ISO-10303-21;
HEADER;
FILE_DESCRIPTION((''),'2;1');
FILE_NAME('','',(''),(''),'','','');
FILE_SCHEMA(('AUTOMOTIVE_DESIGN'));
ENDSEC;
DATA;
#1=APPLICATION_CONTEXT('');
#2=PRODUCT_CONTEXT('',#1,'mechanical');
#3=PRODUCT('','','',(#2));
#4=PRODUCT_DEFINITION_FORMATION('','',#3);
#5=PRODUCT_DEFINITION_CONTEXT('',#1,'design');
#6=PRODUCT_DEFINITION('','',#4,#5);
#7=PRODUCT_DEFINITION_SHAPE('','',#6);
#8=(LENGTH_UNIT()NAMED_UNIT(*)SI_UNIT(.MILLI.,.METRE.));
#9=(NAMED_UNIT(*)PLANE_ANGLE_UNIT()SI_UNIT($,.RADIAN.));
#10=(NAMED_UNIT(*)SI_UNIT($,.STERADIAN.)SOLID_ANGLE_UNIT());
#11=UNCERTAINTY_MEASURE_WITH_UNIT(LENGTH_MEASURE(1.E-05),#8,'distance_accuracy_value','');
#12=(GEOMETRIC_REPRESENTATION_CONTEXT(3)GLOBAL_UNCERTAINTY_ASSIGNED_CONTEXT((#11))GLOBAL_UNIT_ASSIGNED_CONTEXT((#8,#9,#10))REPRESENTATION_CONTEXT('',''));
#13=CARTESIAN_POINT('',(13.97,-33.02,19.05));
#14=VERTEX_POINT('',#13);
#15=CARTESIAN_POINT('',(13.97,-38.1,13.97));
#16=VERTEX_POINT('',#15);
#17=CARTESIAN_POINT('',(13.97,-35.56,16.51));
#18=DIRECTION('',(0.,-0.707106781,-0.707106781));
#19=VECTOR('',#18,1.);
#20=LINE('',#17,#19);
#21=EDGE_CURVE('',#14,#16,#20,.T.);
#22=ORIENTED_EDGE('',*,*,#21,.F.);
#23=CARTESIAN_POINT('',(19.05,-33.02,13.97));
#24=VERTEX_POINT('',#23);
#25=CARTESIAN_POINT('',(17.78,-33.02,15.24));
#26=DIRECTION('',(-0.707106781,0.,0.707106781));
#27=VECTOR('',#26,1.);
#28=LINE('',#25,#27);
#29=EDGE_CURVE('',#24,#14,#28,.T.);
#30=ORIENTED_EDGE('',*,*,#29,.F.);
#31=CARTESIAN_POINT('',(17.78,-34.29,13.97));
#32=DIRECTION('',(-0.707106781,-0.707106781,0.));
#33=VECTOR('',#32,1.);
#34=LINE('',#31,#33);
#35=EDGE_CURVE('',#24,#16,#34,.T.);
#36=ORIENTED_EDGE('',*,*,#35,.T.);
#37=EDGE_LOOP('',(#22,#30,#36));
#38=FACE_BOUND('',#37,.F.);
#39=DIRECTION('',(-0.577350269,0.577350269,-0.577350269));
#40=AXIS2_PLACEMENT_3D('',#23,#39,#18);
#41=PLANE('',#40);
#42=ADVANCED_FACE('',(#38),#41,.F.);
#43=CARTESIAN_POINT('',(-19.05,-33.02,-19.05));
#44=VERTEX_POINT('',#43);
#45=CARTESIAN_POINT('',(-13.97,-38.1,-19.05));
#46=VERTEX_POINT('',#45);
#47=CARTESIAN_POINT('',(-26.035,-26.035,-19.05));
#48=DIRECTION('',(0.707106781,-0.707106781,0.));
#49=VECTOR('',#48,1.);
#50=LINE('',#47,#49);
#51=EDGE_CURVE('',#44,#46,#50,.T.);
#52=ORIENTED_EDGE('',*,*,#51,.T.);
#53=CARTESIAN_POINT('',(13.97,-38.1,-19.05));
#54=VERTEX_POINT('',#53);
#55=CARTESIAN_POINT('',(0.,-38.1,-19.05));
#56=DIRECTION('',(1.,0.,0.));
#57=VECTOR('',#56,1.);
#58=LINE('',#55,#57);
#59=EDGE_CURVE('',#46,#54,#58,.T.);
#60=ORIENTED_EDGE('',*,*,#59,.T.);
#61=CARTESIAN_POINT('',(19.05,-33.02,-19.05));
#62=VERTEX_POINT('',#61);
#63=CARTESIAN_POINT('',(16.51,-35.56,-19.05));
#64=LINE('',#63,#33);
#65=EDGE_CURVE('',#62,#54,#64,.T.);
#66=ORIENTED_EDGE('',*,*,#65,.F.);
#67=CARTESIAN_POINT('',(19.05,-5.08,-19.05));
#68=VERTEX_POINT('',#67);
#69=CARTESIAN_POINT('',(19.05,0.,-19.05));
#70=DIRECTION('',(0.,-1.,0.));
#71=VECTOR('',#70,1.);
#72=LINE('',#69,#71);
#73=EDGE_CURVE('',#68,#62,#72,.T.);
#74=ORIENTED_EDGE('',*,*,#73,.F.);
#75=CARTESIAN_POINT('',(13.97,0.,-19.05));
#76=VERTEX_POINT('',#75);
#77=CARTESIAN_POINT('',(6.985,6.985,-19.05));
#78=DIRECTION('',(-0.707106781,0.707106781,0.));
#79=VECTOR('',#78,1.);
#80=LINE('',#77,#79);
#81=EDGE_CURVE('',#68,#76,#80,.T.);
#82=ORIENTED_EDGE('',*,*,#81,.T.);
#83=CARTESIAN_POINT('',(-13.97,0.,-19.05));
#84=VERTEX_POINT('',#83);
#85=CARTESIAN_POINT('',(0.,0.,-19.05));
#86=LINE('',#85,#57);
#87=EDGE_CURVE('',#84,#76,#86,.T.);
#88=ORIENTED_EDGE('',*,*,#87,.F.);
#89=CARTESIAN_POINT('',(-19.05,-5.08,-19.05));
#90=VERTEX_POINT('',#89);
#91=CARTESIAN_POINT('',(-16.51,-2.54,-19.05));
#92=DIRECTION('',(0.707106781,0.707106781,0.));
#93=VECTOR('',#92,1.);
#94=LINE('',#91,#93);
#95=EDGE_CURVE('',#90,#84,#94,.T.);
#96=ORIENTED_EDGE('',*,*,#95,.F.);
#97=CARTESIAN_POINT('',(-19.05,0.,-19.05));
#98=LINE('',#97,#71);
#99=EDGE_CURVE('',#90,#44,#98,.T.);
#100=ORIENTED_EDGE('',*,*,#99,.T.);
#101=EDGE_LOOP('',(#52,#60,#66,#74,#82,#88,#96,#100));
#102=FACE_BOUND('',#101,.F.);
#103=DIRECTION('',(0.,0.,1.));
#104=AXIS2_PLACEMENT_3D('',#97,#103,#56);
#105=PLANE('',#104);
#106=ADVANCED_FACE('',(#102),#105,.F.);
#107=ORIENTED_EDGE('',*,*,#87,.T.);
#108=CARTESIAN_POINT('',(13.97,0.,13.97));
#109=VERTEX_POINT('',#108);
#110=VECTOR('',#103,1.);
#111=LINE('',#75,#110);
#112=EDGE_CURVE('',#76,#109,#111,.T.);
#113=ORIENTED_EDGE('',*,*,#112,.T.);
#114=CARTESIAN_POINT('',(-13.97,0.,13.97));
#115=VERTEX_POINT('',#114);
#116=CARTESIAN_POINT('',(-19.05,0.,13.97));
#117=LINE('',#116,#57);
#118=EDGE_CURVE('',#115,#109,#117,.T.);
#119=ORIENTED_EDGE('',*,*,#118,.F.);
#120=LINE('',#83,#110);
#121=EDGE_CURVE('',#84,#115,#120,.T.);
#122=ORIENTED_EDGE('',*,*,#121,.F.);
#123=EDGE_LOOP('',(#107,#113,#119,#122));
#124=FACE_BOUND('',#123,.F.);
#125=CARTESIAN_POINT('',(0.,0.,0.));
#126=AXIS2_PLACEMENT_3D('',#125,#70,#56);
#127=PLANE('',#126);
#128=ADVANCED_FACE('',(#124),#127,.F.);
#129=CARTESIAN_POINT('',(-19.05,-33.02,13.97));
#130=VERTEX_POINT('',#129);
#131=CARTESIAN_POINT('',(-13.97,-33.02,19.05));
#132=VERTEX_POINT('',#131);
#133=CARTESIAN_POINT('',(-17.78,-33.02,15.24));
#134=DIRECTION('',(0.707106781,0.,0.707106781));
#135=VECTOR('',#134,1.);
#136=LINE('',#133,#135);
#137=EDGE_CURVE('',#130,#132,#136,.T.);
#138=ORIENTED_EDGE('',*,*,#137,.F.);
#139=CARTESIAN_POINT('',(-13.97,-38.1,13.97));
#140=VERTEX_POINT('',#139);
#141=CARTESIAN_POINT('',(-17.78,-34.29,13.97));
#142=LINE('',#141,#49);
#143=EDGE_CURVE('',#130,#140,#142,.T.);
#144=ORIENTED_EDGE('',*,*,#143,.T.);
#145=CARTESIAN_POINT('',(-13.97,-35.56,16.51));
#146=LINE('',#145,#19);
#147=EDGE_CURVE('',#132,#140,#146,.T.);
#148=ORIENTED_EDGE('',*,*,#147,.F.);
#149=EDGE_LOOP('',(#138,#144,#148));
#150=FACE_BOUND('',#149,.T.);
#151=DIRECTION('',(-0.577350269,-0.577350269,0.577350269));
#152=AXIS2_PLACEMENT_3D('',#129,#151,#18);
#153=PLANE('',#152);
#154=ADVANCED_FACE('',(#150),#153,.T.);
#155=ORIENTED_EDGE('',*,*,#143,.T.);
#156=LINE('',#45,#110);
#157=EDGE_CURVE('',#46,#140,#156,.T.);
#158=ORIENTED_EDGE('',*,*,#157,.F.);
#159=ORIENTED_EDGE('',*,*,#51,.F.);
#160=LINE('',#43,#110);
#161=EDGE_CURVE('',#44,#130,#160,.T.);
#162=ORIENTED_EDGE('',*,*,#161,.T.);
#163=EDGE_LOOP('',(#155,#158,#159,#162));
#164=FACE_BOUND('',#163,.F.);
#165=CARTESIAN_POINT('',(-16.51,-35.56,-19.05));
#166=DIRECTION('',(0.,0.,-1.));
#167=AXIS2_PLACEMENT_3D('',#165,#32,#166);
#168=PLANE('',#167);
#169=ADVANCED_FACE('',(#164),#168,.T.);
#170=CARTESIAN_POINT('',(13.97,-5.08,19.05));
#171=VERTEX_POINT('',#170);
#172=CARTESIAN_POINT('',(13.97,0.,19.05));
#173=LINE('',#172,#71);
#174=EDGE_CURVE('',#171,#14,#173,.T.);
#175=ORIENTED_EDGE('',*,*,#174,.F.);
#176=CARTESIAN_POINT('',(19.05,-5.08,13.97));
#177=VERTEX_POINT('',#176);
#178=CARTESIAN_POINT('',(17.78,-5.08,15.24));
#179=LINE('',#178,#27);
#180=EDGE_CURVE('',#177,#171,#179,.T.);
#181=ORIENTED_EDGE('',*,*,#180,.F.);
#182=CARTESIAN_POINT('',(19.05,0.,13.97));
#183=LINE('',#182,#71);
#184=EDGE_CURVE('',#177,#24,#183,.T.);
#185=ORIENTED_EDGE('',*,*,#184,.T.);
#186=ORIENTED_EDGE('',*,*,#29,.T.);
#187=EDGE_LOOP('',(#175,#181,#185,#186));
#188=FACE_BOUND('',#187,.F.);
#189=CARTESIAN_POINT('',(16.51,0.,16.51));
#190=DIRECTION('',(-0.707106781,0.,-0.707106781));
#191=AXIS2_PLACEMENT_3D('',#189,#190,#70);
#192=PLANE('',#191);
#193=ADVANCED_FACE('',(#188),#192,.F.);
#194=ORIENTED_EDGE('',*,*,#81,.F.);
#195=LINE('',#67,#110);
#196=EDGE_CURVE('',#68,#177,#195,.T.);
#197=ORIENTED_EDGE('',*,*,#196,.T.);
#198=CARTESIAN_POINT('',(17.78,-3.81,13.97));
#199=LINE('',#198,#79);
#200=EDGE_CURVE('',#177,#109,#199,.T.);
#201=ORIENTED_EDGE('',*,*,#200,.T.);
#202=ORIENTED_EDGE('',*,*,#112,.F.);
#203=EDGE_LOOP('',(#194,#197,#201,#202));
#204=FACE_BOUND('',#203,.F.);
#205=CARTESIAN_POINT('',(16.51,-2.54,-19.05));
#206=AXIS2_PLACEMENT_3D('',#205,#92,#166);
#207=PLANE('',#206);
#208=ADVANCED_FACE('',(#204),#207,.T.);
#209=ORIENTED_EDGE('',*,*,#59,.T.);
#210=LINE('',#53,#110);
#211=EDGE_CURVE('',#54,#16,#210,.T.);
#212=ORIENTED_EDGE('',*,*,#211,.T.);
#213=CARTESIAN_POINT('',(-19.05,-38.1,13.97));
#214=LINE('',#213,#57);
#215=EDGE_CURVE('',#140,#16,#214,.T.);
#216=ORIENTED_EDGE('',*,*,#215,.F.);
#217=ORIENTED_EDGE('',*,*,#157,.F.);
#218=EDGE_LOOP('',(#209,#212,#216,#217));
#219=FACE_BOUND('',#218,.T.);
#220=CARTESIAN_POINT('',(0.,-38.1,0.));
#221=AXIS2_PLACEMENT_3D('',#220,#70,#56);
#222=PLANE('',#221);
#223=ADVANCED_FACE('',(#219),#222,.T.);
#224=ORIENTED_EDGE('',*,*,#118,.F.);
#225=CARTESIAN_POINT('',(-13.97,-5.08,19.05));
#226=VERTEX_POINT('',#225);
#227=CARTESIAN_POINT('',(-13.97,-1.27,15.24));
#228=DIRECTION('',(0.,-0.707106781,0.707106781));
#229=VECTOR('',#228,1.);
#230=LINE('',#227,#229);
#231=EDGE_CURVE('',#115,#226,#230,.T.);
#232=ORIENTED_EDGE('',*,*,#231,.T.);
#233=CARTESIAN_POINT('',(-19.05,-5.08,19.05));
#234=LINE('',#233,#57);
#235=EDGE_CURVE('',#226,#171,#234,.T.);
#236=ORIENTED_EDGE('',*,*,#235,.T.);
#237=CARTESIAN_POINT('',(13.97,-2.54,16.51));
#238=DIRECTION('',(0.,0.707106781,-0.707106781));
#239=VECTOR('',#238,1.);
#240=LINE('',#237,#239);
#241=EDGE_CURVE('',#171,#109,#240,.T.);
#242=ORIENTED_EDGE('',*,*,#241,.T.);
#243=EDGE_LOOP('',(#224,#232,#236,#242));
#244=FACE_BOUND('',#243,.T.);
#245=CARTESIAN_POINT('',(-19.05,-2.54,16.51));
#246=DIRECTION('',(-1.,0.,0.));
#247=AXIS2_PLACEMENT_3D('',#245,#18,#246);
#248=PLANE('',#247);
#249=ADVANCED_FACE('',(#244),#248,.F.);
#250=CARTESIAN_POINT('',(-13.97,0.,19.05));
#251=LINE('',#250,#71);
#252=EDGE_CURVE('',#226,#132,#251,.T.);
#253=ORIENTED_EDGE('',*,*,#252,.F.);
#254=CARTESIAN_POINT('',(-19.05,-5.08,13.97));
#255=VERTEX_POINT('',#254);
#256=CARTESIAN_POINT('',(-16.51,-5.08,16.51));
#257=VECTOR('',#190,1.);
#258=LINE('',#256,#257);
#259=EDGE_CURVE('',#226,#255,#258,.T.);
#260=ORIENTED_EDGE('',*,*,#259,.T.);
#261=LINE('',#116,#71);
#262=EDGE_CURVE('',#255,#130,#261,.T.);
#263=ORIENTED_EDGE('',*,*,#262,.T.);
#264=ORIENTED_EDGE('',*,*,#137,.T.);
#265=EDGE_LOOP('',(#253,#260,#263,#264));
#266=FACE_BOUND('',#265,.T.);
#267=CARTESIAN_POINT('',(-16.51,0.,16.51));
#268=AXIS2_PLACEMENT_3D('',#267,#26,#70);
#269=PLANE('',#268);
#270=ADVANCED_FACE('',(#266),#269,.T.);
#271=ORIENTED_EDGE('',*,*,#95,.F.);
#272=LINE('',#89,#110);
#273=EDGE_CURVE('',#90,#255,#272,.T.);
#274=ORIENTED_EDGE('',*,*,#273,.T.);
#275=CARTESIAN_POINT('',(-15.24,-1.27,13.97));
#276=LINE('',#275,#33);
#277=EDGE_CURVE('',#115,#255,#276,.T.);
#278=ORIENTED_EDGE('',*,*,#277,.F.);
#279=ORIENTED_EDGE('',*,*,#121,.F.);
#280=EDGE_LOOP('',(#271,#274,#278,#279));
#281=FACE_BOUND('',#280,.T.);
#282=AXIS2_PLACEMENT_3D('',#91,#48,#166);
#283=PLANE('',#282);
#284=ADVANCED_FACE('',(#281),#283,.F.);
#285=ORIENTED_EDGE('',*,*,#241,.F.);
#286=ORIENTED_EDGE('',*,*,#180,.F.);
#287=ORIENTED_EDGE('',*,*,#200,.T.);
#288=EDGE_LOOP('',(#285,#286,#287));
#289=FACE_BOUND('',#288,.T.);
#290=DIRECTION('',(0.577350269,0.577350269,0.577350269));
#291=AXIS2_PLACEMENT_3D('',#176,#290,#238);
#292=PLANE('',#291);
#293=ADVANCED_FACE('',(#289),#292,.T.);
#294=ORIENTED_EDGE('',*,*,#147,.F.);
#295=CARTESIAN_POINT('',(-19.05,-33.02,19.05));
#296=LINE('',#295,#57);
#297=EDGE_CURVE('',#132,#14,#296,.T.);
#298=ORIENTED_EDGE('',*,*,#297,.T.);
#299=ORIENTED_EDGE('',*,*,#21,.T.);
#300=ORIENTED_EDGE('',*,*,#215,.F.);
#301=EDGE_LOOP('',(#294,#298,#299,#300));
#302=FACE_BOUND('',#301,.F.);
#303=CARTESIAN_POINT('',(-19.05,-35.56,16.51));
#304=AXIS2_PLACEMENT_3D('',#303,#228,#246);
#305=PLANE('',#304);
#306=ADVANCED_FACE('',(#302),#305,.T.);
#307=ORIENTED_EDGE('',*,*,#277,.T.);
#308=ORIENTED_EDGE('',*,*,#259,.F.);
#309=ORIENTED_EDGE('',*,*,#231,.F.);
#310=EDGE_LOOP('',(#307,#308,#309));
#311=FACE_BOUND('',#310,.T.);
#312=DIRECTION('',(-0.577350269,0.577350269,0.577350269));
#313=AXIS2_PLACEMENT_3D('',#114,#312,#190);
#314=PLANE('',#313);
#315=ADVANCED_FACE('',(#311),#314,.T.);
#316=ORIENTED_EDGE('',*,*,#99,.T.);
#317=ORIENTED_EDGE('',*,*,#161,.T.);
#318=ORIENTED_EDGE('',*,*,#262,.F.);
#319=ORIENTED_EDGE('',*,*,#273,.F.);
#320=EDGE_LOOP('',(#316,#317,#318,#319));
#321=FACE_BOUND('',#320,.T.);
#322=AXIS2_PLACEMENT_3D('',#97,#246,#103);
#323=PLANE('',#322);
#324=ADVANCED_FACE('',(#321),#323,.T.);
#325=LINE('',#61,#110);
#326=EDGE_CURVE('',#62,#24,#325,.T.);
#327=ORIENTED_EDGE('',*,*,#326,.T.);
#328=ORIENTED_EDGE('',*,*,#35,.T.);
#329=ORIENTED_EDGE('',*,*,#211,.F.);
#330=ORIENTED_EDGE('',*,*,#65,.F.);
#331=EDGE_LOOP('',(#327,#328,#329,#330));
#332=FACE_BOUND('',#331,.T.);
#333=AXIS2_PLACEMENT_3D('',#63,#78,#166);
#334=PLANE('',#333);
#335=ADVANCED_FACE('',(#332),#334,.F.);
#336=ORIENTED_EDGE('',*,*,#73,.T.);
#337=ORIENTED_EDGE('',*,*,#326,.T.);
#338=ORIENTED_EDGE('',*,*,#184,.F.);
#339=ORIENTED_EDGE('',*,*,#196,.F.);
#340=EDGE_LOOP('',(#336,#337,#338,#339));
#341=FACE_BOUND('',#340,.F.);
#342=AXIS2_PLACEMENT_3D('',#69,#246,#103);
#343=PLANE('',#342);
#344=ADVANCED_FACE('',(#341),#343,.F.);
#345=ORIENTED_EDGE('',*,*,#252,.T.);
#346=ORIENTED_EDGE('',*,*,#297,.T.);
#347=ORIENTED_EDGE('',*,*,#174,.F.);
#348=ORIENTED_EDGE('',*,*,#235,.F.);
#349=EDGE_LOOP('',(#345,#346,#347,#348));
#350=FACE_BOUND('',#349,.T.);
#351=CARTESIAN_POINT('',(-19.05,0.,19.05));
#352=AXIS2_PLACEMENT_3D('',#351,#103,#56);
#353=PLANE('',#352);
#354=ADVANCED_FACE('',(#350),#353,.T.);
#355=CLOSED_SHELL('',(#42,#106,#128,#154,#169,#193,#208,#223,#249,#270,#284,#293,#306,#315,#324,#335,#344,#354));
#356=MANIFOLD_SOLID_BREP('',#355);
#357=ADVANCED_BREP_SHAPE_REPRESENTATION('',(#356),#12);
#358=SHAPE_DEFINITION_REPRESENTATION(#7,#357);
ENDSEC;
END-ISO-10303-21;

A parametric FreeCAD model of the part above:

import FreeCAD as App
import Part
import Sketcher
Q = App.Units.Quantity


def edges_at(feature, points):
    """Names of the edges that pass closest to the given points."""
    edges = feature.Shape.Edges
    near = lambda p: min(range(len(edges)), key=lambda i: edges[i].distToShape(Part.Vertex(*p))[0])
    return sorted({f"Edge{near(p) + 1}" for p in points})


def add_polygon(sketch, points):
    """Adds a closed chain of lines whose ends are joined by coincident constraints."""
    first, n = sketch.GeometryCount, len(points)
    for a, b in zip(points, points[1:] + points[:1]):
        sketch.addGeometry(Part.LineSegment(App.Vector(*a, 0), App.Vector(*b, 0)), False)
    for i in range(n):
        sketch.addConstraint(Sketcher.Constraint("Coincident", first + i, 2, first + (i + 1) % n, 1))

doc = App.newDocument("Part")
params = doc.addObject("Spreadsheet::Sheet", "Params")
for row, (alias, value) in enumerate([
    ("sketch1_width", "1.5 in"),
    ("pad1_length", "1.5 in"),
    ("chamfer_size", "0.2 in"),
], start=1):
    params.set(f"A{row}", alias)
    params.set(f"B{row}", "=" + value)
    params.setAlias(f"B{row}", alias)

body = doc.addObject("PartDesign::Body", "Body")

sketch1 = doc.addObject("Sketcher::SketchObject", "Sketch")
body.addObject(sketch1)
sketch1.AttachmentSupport = (doc.XZ_Plane, [""])
sketch1.MapMode = "FlatFace"
add_polygon(sketch1, [(-19, 19), (-19, -19), (19, -19), (19, 19)])
sketch1.addConstraint([
    Sketcher.Constraint("Vertical", 0),
    Sketcher.Constraint("Horizontal", 1),
    Sketcher.Constraint("Vertical", 2),
    Sketcher.Constraint("Horizontal", 3),
    Sketcher.Constraint("Symmetric", 0, 2, 2, 2, -1, 1),
    Sketcher.Constraint("Equal", 3, 0),
    Sketcher.Constraint("DistanceX", 1, 1, 1, 2, Q("1.5 in")),
])
sketch1.setExpression("Constraints[10]", "Params.sketch1_width")
pad1 = doc.addObject("PartDesign::Pad", "Pad")
body.addObject(pad1)
pad1.Profile = sketch1
pad1.setExpression("Length", "Params.pad1_length")
doc.recompute()

chamfer = doc.addObject("PartDesign::Chamfer", "Chamfer")
body.addObject(chamfer)
chamfer.Base = (pad1, edges_at(pad1, [
    (0, -38.1, 19.05),
    (-19.05, -19.05, 19.05),
    (0, 0, 19.05),
    (19.05, -19.05, 19.05),
    (19.05, -38.1, 0),
    (19.05, 0, 0),
    (-19.05, -38.1, 0),
    (-19.05, 0, 0),
]))
chamfer.setExpression("Size", "Params.chamfer_size")

doc.recompute()
